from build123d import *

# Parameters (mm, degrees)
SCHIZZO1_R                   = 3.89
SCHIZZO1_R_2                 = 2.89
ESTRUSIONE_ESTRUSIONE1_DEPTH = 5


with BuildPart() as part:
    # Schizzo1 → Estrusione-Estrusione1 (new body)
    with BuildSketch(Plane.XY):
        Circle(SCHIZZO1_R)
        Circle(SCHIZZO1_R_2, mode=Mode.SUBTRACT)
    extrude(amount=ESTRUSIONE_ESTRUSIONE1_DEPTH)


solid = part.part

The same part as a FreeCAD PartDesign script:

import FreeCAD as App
import Part
import Sketcher

doc = App.newDocument("Part")
body = doc.addObject("PartDesign::Body", "Body")

# Sketch on XY plane
sketch1 = doc.addObject("Sketcher::SketchObject", "Sketch")
body.addObject(sketch1)
sketch1.AttachmentSupport = (doc.XY_Plane, [""])
sketch1.MapMode = "FlatFace"
sketch1.addGeometry(Part.Circle(App.Vector(0, 0, 0), App.Vector(0, 0, 1), 3.9), False)
sketch1.addGeometry(Part.Circle(App.Vector(0, 0, 0), App.Vector(0, 0, 1), 2.9), False)
sketch1.addConstraint(Sketcher.Constraint("Coincident", 0, 3, -1, 1))
sketch1.addConstraint(Sketcher.Constraint("Coincident", 1, 3, -1, 1))
sketch1.addConstraint(Sketcher.Constraint("Diameter", 0, 7.78))
sketch1.addConstraint(Sketcher.Constraint("Diameter", 1, 5.78))
pad1 = doc.addObject("PartDesign::Pad", "Pad")
body.addObject(pad1)
pad1.Profile = sketch1
pad1.Length = 5

doc.recompute()
